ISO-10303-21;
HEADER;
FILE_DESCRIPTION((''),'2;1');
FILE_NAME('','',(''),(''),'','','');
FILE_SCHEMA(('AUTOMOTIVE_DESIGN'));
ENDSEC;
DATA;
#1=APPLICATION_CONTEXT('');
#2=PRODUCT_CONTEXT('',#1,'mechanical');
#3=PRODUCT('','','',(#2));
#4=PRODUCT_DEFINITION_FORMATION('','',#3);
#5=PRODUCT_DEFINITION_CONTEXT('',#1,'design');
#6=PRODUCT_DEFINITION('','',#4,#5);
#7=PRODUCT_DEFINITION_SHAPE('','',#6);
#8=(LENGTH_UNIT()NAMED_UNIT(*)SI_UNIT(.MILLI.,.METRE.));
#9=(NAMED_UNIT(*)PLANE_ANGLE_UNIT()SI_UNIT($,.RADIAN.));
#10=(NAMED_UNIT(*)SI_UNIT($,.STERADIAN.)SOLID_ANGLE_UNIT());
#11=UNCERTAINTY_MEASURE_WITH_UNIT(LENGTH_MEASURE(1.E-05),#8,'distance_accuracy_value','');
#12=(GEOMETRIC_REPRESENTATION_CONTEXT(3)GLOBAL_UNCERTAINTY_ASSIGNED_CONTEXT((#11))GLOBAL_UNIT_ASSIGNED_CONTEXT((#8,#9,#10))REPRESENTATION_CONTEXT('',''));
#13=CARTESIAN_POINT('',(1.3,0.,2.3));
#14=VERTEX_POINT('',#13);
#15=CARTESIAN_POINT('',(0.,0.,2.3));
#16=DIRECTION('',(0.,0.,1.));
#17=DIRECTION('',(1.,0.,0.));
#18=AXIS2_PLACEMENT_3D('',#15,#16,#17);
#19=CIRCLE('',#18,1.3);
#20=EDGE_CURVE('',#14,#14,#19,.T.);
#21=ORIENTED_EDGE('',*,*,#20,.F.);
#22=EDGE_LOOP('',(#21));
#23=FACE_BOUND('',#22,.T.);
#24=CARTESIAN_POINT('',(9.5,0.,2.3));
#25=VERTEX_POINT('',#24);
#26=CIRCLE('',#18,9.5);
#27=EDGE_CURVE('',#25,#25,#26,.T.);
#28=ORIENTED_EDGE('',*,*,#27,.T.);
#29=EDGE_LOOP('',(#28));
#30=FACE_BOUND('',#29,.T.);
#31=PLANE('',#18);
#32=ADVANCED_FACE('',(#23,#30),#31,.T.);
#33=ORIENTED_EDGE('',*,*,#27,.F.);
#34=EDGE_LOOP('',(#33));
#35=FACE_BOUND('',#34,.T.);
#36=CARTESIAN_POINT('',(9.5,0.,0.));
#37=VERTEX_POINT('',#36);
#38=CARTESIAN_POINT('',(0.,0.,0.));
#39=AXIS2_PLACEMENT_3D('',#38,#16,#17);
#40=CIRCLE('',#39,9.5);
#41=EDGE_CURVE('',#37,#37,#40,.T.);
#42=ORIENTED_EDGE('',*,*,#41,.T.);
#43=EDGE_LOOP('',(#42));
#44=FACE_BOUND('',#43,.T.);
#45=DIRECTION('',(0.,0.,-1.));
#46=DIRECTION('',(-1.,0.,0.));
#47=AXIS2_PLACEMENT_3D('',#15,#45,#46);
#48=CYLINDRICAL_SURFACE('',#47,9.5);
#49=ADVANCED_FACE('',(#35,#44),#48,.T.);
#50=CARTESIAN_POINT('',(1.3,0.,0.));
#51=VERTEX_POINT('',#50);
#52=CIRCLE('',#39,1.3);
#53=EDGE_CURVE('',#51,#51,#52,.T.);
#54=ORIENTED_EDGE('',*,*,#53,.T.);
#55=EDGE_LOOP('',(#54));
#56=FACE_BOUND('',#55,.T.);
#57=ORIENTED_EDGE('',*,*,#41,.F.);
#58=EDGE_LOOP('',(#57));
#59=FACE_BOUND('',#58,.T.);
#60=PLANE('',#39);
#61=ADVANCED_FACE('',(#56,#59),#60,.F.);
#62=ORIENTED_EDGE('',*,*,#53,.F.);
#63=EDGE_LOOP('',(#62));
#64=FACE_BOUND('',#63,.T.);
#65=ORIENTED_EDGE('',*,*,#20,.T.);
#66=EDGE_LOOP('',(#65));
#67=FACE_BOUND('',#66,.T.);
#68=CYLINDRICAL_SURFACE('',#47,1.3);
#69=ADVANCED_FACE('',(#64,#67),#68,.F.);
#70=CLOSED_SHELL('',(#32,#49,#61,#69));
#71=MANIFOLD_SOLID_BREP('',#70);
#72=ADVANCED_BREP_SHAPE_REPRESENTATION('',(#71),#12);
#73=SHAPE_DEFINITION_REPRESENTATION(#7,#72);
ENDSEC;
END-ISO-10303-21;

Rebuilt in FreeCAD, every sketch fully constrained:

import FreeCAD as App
import Part
import Sketcher
from FreeCAD import Vector

doc = App.newDocument("Part")
body = doc.addObject("PartDesign::Body", "Body")

# Sketch on XY plane
sketch1 = body.newObject("Sketcher::SketchObject", "Sketch")
sketch1.AttachmentSupport = (doc.getObject("XY_Plane"), [""])
sketch1.MapMode = "FlatFace"
sketch1.addGeometry(Part.Circle(Vector(0, 0, 0), Vector(0, 0, 1), 9.5), False)
sketch1.addGeometry(Part.Circle(Vector(0, 0, 0), Vector(0, 0, 1), 1.3), False)
sketch1.addConstraint(Sketcher.Constraint("Coincident", 0, 3, -1, 1))
sketch1.addConstraint(Sketcher.Constraint("Coincident", 1, 3, -1, 1))
sketch1.addConstraint(Sketcher.Constraint("Diameter", 0, 19.0))
sketch1.addConstraint(Sketcher.Constraint("Diameter", 1, 2.6))
pad1 = body.newObject("PartDesign::Pad", "Pad")
pad1.Profile = sketch1
pad1.Length = 2.3

doc.recompute()
